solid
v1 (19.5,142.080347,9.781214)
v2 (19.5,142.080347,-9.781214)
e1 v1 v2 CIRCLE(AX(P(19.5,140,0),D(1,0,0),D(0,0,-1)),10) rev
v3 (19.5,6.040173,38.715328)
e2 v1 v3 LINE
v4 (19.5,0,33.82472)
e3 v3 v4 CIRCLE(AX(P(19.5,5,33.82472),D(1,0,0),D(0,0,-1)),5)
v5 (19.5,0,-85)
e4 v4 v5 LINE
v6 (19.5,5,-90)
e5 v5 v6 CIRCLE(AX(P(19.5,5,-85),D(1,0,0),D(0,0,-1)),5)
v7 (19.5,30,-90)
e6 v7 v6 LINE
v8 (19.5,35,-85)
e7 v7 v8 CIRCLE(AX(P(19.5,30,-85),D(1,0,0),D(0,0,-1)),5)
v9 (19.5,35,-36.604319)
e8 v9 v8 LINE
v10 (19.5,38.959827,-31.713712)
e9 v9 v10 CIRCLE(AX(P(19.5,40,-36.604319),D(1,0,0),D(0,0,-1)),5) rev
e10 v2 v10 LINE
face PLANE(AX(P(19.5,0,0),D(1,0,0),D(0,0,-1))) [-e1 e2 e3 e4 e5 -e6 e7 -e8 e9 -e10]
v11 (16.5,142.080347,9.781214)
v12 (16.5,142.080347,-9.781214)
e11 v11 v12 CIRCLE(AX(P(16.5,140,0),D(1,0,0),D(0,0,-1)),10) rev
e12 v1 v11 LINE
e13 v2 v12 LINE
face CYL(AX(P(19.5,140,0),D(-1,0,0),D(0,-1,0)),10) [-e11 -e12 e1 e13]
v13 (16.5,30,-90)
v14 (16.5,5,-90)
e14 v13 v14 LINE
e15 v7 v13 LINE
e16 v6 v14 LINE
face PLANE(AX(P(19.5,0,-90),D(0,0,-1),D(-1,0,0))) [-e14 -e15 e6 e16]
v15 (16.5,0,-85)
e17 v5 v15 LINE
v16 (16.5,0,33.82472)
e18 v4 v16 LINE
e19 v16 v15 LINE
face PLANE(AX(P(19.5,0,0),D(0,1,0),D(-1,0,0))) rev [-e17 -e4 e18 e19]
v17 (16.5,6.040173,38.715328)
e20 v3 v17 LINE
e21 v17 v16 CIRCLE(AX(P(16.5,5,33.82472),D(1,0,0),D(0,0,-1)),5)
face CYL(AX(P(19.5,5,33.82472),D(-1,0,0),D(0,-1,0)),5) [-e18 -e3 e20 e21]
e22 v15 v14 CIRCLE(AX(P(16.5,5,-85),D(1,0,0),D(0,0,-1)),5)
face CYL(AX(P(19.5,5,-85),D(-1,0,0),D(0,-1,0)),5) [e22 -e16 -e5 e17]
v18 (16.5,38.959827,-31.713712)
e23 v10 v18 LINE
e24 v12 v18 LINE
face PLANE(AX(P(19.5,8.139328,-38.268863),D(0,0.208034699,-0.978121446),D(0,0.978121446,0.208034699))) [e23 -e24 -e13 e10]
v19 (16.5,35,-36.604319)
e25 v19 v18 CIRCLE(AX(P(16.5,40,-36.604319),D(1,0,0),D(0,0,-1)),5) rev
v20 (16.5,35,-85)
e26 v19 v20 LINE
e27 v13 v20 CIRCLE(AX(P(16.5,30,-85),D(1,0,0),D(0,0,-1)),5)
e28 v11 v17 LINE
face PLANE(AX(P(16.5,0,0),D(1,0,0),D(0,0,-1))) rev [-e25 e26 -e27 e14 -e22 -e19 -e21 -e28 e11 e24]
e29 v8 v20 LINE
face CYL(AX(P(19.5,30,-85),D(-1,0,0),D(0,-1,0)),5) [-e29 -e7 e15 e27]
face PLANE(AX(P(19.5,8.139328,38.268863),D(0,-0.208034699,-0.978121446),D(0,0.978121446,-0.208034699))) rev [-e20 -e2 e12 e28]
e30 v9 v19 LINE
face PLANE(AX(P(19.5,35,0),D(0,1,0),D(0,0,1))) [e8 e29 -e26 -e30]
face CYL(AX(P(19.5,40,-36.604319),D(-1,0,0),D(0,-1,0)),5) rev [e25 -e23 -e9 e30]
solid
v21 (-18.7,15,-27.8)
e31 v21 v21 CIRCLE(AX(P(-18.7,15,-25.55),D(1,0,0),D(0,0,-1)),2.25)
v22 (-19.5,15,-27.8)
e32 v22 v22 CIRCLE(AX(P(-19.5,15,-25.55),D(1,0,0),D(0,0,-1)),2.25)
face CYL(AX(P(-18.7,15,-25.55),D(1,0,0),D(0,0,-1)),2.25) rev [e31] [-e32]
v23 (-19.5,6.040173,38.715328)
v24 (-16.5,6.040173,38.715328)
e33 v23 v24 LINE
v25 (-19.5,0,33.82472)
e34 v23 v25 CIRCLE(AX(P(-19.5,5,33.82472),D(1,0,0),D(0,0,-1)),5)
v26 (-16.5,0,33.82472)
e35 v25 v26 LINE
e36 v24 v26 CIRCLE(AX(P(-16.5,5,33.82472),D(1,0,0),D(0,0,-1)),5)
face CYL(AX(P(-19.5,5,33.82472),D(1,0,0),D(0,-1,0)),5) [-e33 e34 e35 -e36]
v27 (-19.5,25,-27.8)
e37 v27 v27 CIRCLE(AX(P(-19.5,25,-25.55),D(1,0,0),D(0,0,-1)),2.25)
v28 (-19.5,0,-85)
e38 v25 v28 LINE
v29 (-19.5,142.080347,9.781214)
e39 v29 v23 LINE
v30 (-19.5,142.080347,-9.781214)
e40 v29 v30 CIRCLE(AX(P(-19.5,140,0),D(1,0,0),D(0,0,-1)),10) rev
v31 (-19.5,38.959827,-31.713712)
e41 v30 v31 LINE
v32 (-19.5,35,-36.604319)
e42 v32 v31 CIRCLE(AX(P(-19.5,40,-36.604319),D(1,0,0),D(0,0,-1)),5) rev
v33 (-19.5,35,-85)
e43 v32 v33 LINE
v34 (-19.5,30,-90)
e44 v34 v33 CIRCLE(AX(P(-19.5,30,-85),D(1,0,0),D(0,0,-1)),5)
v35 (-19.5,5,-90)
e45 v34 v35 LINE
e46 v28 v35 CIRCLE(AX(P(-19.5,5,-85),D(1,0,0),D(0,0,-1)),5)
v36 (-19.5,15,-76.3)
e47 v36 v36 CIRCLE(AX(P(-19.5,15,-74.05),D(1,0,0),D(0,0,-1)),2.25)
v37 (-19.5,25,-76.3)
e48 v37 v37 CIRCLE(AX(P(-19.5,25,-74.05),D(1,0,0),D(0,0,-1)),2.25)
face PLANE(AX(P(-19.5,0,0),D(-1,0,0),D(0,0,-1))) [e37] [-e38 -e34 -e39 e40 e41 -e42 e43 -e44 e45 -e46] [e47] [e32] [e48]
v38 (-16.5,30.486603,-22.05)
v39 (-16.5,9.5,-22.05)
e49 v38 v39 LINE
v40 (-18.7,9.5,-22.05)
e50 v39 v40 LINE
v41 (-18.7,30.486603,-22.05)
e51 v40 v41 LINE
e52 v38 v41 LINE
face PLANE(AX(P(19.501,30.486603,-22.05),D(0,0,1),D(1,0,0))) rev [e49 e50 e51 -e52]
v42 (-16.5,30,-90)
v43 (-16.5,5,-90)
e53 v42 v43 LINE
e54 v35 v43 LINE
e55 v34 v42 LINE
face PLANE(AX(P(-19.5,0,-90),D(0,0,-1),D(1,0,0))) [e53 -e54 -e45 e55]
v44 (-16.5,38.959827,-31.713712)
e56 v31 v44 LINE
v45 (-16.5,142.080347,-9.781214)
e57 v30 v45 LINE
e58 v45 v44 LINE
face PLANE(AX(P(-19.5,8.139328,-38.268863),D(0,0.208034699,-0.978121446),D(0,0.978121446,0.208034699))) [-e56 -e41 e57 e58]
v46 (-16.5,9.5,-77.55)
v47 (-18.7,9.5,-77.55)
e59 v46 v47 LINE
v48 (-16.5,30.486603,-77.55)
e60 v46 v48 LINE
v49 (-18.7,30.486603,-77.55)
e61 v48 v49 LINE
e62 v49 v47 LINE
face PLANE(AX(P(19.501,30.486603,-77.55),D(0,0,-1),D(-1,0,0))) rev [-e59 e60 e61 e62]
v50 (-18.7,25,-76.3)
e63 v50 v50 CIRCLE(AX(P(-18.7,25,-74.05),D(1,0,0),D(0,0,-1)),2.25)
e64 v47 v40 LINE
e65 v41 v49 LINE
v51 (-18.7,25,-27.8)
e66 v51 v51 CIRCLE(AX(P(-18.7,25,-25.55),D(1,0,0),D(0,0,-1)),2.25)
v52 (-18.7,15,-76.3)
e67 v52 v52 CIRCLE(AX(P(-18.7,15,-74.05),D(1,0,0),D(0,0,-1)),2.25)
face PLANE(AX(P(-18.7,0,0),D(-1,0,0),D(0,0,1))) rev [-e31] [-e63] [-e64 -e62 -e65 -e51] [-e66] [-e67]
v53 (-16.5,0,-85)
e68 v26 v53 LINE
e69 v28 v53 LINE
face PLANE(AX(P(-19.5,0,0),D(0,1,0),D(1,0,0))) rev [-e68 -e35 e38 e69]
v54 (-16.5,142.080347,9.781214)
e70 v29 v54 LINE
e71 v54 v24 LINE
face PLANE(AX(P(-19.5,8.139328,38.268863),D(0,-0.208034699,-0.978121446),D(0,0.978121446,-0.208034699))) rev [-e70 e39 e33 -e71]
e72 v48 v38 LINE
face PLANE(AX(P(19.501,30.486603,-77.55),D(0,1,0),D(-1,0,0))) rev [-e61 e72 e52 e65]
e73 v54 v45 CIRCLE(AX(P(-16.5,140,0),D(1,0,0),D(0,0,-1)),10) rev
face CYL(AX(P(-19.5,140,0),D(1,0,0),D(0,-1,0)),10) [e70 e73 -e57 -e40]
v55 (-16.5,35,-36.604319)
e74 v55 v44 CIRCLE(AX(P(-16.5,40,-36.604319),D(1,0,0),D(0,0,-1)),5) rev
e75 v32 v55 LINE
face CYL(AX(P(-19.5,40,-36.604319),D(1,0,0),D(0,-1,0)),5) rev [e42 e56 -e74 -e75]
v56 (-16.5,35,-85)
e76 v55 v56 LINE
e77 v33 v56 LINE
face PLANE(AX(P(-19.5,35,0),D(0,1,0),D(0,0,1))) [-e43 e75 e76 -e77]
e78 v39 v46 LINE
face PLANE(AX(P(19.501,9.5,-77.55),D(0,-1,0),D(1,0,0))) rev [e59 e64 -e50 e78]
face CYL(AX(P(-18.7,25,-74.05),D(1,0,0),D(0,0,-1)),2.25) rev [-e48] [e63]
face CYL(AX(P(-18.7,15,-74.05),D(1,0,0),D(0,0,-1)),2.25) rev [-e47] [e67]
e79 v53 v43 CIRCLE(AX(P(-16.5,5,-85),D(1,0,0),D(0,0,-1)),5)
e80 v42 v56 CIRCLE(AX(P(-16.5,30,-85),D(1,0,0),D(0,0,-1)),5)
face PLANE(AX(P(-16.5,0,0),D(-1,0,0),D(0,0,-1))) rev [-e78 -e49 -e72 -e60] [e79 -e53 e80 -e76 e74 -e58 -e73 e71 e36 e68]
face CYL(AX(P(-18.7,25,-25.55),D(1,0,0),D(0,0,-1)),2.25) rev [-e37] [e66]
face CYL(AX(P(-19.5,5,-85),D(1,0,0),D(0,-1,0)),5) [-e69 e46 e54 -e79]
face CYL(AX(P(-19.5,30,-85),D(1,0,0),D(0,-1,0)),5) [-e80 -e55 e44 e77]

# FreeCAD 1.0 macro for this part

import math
import FreeCAD as App
import Part
import Sketcher
from FreeCAD import Vector


def add_polygon(sketch, points):
    """Adds a closed chain of lines whose ends are joined by coincident constraints."""
    first, n = sketch.GeometryCount, len(points)
    for a, b in zip(points, points[1:] + points[:1]):
        sketch.addGeometry(Part.LineSegment(App.Vector(*a, 0), App.Vector(*b, 0)), False)
    for i in range(n):
        sketch.addConstraint(Sketcher.Constraint("Coincident", first + i, 2, first + (i + 1) % n, 1))

doc = App.newDocument("Part")
body = doc.addObject("PartDesign::Body", "Body")

sketch1 = doc.addObject("Sketcher::SketchObject", "Sketch")
body.addObject(sketch1)
sketch1.AttachmentSupport = (doc.YZ_Plane, [""])
sketch1.MapMode = "FlatFace"
sketch1.AttachmentOffset = App.Placement(Vector(0, 0, 16.5), App.Rotation())
sketch1.addGeometry(Part.ArcOfCircle(Part.Circle(Vector(140, 0, 0), Vector(0, 0, 1), 10), math.radians(-77.992795), math.radians(77.992795)), False)
sketch1.addGeometry(Part.LineSegment(Vector(142.080347, 9.781214, 0), Vector(6.040173, 38.715328, 0)), False)
sketch1.addGeometry(Part.ArcOfCircle(Part.Circle(Vector(5, 33.82472, 0), Vector(0, 0, 1), 5), math.radians(77.992795), math.radians(180)), False)
sketch1.addGeometry(Part.LineSegment(Vector(0, 33.82472, 0), Vector(0, -85, 0)), False)
sketch1.addGeometry(Part.ArcOfCircle(Part.Circle(Vector(5, -85, 0), Vector(0, 0, 1), 5), math.radians(180), math.radians(270)), False)
sketch1.addGeometry(Part.LineSegment(Vector(5, -90, 0), Vector(30, -90, 0)), False)
sketch1.addGeometry(Part.ArcOfCircle(Part.Circle(Vector(30, -85, 0), Vector(0, 0, 1), 5), math.radians(-90), math.radians(0)), False)
sketch1.addGeometry(Part.LineSegment(Vector(35, -85, 0), Vector(35, -36.604319, 0)), False)
sketch1.addGeometry(Part.ArcOfCircle(Part.Circle(Vector(40, -36.604319, 0), Vector(0, 0, 1), 5), math.radians(102.007205), math.radians(180)), False)
sketch1.addGeometry(Part.LineSegment(Vector(38.959827, -31.713712, 0), Vector(142.080347, -9.781214, 0)), False)
sketch1.addConstraint(Sketcher.Constraint("Tangent", 0, 2, 1, 1))
sketch1.addConstraint(Sketcher.Constraint("Tangent", 1, 2, 2, 1))
sketch1.addConstraint(Sketcher.Constraint("Tangent", 2, 2, 3, 1))
sketch1.addConstraint(Sketcher.Constraint("Tangent", 3, 2, 4, 1))
sketch1.addConstraint(Sketcher.Constraint("Tangent", 4, 2, 5, 1))
sketch1.addConstraint(Sketcher.Constraint("Tangent", 5, 2, 6, 1))
sketch1.addConstraint(Sketcher.Constraint("Tangent", 6, 2, 7, 1))
sketch1.addConstraint(Sketcher.Constraint("Tangent", 7, 2, 8, 2))
sketch1.addConstraint(Sketcher.Constraint("Tangent", 8, 1, 9, 1))
sketch1.addConstraint(Sketcher.Constraint("Tangent", 9, 2, 0, 1))
sketch1.addConstraint(Sketcher.Constraint("Vertical", 3))
sketch1.addConstraint(Sketcher.Constraint("Horizontal", 5))
sketch1.addConstraint(Sketcher.Constraint("Vertical", 7))
sketch1.addConstraint(Sketcher.Constraint("Equal", 2, 4))
sketch1.addConstraint(Sketcher.Constraint("Equal", 4, 6))
sketch1.addConstraint(Sketcher.Constraint("Equal", 6, 8))
sketch1.addConstraint(Sketcher.Constraint("Symmetric", 0, 2, 9, 2, -1))
sketch1.addConstraint(Sketcher.Constraint("PointOnObject", 2, 2, -2))
sketch1.addConstraint(Sketcher.Constraint("Radius", 0, 10.0))
sketch1.addConstraint(Sketcher.Constraint("Radius", 2, 5.0))
sketch1.addConstraint(Sketcher.Constraint("DistanceX", 5, 1, 5, 2, 25.0))
sketch1.addConstraint(Sketcher.Constraint("DistanceX", -1, 1, 0, 3, 140.0))
sketch1.addConstraint(Sketcher.Constraint("DistanceY", 4, 3, -1, 1, 85.0))
sketch1.addConstraint(Sketcher.Constraint("DistanceY", 3, 2, 3, 1, 118.82472))
pad1 = doc.addObject("PartDesign::Pad", "Pad")
body.addObject(pad1)
pad1.Profile = sketch1
pad1.Length = 3
body2 = doc.addObject("PartDesign::Body", "Body001")
doc.recompute()

mirroring = doc.addObject("Part::Mirroring", "Mirroring")
mirroring.Source = body
mirroring.Base = Vector(0, 0, 0)
mirroring.Normal = Vector(1, 0, 0)
body2.BaseFeature = mirroring
doc.recompute()

sketch2 = doc.addObject("Sketcher::SketchObject", "Sketch001")
body2.addObject(sketch2)
sketch2.AttachmentSupport = (doc.getObject("YZ_Plane001"), [""])
sketch2.MapMode = "FlatFace"
sketch2.AttachmentOffset = App.Placement(Vector(0, 0, -18.7), App.Rotation())
add_polygon(sketch2, [(30.486603, -77.55), (9.5, -77.55), (9.5, -22.05), (30.486603, -22.05)])
sketch2.addConstraint(Sketcher.Constraint("Horizontal", 0))
sketch2.addConstraint(Sketcher.Constraint("Vertical", 1))
sketch2.addConstraint(Sketcher.Constraint("Horizontal", 2))
sketch2.addConstraint(Sketcher.Constraint("Vertical", 3))
sketch2.addConstraint(Sketcher.Constraint("DistanceY", 1, 1, 1, 2, 55.5))
sketch2.addConstraint(Sketcher.Constraint("DistanceX", -1, 1, 0, 2, 9.5))
sketch2.addConstraint(Sketcher.Constraint("DistanceY", 0, 2, -1, 1, 77.55))
sketch2.addConstraint(Sketcher.Constraint("DistanceX", 0, 2, 0, 1, 20.986603))
pocket1 = doc.addObject("PartDesign::Pocket", "Pocket")
body2.addObject(pocket1)
pocket1.Profile = sketch2
pocket1.Length = 2.2
pocket1.Reversed = True

sketch3 = doc.addObject("Sketcher::SketchObject", "Sketch002")
body2.addObject(sketch3)
sketch3.AttachmentSupport = (doc.getObject("XZ_Plane001"), [""])
sketch3.MapMode = "FlatFace"
sketch3.AttachmentOffset = App.Placement(Vector(0, 0, -15), App.Rotation())
add_polygon(sketch3, [(-19.5, -25.55), (-18.7, -25.55), (-18.7, -27.8), (-19.5, -27.8)])
sketch3.addGeometry(Part.LineSegment(Vector(-18.7, -25.55, 0), Vector(-19.5, -25.55, 0)), True)
sketch3.addConstraint(Sketcher.Constraint("Horizontal", 0))
sketch3.addConstraint(Sketcher.Constraint("Vertical", 1))
sketch3.addConstraint(Sketcher.Constraint("Horizontal", 2))
sketch3.addConstraint(Sketcher.Constraint("Vertical", 3))
sketch3.addConstraint(Sketcher.Constraint("Horizontal", 4))
sketch3.addConstraint(Sketcher.Constraint("Coincident", 4, 1, 0, 2))
sketch3.addConstraint(Sketcher.Constraint("Vertical", 2, 2, 4, 2))
sketch3.addConstraint(Sketcher.Constraint("DistanceX", 0, 1, 0, 2, 0.8))
sketch3.addConstraint(Sketcher.Constraint("DistanceY", 1, 2, 1, 1, 2.25))
sketch3.addConstraint(Sketcher.Constraint("DistanceX", 0, 2, -1, 1, 18.7))
sketch3.addConstraint(Sketcher.Constraint("DistanceY", 1, 2, -1, 1, 27.8))
groove = doc.addObject("PartDesign::Groove", "Groove")
body2.addObject(groove)
groove.Profile = sketch3
groove.ReferenceAxis = (sketch3, ["Axis0"])
groove.Angle = 360
doc.recompute()

linearpattern = doc.addObject("PartDesign::LinearPattern", "LinearPattern")
body2.addObject(linearpattern)
linearpattern.Originals = [groove]
linearpattern.Direction = (doc.getObject("Z_Axis001"), [""])
linearpattern.Mode = "offset"
linearpattern.Offset = 48.5
linearpattern.Occurrences = 2
linearpattern.Reversed = True
body2.Tip = linearpattern
doc.recompute()

datumline = doc.addObject("PartDesign::Line", "DatumLine")
body2.addObject(datumline)
datumline.Placement = App.Placement(Vector(0, 0, 0), App.Rotation(Vector(0, 0, 1), Vector(0, 0.201937804, -0.979398348)))
linearpattern2 = doc.addObject("PartDesign::LinearPattern", "LinearPattern001")
body2.addObject(linearpattern2)
linearpattern2.Originals = [groove]
linearpattern2.Direction = (datumline, [""])
linearpattern2.Mode = "offset"
linearpattern2.Offset = 49.520198
linearpattern2.Occurrences = 2
body2.Tip = linearpattern2
doc.recompute()

linearpattern3 = doc.addObject("PartDesign::LinearPattern", "LinearPattern002")
body2.addObject(linearpattern3)
linearpattern3.Originals = [groove]
linearpattern3.Direction = (doc.getObject("Y_Axis001"), [""])
linearpattern3.Mode = "offset"
linearpattern3.Offset = 10
linearpattern3.Occurrences = 2
body2.Tip = linearpattern3
mirroring.Visibility = False

doc.recompute()
